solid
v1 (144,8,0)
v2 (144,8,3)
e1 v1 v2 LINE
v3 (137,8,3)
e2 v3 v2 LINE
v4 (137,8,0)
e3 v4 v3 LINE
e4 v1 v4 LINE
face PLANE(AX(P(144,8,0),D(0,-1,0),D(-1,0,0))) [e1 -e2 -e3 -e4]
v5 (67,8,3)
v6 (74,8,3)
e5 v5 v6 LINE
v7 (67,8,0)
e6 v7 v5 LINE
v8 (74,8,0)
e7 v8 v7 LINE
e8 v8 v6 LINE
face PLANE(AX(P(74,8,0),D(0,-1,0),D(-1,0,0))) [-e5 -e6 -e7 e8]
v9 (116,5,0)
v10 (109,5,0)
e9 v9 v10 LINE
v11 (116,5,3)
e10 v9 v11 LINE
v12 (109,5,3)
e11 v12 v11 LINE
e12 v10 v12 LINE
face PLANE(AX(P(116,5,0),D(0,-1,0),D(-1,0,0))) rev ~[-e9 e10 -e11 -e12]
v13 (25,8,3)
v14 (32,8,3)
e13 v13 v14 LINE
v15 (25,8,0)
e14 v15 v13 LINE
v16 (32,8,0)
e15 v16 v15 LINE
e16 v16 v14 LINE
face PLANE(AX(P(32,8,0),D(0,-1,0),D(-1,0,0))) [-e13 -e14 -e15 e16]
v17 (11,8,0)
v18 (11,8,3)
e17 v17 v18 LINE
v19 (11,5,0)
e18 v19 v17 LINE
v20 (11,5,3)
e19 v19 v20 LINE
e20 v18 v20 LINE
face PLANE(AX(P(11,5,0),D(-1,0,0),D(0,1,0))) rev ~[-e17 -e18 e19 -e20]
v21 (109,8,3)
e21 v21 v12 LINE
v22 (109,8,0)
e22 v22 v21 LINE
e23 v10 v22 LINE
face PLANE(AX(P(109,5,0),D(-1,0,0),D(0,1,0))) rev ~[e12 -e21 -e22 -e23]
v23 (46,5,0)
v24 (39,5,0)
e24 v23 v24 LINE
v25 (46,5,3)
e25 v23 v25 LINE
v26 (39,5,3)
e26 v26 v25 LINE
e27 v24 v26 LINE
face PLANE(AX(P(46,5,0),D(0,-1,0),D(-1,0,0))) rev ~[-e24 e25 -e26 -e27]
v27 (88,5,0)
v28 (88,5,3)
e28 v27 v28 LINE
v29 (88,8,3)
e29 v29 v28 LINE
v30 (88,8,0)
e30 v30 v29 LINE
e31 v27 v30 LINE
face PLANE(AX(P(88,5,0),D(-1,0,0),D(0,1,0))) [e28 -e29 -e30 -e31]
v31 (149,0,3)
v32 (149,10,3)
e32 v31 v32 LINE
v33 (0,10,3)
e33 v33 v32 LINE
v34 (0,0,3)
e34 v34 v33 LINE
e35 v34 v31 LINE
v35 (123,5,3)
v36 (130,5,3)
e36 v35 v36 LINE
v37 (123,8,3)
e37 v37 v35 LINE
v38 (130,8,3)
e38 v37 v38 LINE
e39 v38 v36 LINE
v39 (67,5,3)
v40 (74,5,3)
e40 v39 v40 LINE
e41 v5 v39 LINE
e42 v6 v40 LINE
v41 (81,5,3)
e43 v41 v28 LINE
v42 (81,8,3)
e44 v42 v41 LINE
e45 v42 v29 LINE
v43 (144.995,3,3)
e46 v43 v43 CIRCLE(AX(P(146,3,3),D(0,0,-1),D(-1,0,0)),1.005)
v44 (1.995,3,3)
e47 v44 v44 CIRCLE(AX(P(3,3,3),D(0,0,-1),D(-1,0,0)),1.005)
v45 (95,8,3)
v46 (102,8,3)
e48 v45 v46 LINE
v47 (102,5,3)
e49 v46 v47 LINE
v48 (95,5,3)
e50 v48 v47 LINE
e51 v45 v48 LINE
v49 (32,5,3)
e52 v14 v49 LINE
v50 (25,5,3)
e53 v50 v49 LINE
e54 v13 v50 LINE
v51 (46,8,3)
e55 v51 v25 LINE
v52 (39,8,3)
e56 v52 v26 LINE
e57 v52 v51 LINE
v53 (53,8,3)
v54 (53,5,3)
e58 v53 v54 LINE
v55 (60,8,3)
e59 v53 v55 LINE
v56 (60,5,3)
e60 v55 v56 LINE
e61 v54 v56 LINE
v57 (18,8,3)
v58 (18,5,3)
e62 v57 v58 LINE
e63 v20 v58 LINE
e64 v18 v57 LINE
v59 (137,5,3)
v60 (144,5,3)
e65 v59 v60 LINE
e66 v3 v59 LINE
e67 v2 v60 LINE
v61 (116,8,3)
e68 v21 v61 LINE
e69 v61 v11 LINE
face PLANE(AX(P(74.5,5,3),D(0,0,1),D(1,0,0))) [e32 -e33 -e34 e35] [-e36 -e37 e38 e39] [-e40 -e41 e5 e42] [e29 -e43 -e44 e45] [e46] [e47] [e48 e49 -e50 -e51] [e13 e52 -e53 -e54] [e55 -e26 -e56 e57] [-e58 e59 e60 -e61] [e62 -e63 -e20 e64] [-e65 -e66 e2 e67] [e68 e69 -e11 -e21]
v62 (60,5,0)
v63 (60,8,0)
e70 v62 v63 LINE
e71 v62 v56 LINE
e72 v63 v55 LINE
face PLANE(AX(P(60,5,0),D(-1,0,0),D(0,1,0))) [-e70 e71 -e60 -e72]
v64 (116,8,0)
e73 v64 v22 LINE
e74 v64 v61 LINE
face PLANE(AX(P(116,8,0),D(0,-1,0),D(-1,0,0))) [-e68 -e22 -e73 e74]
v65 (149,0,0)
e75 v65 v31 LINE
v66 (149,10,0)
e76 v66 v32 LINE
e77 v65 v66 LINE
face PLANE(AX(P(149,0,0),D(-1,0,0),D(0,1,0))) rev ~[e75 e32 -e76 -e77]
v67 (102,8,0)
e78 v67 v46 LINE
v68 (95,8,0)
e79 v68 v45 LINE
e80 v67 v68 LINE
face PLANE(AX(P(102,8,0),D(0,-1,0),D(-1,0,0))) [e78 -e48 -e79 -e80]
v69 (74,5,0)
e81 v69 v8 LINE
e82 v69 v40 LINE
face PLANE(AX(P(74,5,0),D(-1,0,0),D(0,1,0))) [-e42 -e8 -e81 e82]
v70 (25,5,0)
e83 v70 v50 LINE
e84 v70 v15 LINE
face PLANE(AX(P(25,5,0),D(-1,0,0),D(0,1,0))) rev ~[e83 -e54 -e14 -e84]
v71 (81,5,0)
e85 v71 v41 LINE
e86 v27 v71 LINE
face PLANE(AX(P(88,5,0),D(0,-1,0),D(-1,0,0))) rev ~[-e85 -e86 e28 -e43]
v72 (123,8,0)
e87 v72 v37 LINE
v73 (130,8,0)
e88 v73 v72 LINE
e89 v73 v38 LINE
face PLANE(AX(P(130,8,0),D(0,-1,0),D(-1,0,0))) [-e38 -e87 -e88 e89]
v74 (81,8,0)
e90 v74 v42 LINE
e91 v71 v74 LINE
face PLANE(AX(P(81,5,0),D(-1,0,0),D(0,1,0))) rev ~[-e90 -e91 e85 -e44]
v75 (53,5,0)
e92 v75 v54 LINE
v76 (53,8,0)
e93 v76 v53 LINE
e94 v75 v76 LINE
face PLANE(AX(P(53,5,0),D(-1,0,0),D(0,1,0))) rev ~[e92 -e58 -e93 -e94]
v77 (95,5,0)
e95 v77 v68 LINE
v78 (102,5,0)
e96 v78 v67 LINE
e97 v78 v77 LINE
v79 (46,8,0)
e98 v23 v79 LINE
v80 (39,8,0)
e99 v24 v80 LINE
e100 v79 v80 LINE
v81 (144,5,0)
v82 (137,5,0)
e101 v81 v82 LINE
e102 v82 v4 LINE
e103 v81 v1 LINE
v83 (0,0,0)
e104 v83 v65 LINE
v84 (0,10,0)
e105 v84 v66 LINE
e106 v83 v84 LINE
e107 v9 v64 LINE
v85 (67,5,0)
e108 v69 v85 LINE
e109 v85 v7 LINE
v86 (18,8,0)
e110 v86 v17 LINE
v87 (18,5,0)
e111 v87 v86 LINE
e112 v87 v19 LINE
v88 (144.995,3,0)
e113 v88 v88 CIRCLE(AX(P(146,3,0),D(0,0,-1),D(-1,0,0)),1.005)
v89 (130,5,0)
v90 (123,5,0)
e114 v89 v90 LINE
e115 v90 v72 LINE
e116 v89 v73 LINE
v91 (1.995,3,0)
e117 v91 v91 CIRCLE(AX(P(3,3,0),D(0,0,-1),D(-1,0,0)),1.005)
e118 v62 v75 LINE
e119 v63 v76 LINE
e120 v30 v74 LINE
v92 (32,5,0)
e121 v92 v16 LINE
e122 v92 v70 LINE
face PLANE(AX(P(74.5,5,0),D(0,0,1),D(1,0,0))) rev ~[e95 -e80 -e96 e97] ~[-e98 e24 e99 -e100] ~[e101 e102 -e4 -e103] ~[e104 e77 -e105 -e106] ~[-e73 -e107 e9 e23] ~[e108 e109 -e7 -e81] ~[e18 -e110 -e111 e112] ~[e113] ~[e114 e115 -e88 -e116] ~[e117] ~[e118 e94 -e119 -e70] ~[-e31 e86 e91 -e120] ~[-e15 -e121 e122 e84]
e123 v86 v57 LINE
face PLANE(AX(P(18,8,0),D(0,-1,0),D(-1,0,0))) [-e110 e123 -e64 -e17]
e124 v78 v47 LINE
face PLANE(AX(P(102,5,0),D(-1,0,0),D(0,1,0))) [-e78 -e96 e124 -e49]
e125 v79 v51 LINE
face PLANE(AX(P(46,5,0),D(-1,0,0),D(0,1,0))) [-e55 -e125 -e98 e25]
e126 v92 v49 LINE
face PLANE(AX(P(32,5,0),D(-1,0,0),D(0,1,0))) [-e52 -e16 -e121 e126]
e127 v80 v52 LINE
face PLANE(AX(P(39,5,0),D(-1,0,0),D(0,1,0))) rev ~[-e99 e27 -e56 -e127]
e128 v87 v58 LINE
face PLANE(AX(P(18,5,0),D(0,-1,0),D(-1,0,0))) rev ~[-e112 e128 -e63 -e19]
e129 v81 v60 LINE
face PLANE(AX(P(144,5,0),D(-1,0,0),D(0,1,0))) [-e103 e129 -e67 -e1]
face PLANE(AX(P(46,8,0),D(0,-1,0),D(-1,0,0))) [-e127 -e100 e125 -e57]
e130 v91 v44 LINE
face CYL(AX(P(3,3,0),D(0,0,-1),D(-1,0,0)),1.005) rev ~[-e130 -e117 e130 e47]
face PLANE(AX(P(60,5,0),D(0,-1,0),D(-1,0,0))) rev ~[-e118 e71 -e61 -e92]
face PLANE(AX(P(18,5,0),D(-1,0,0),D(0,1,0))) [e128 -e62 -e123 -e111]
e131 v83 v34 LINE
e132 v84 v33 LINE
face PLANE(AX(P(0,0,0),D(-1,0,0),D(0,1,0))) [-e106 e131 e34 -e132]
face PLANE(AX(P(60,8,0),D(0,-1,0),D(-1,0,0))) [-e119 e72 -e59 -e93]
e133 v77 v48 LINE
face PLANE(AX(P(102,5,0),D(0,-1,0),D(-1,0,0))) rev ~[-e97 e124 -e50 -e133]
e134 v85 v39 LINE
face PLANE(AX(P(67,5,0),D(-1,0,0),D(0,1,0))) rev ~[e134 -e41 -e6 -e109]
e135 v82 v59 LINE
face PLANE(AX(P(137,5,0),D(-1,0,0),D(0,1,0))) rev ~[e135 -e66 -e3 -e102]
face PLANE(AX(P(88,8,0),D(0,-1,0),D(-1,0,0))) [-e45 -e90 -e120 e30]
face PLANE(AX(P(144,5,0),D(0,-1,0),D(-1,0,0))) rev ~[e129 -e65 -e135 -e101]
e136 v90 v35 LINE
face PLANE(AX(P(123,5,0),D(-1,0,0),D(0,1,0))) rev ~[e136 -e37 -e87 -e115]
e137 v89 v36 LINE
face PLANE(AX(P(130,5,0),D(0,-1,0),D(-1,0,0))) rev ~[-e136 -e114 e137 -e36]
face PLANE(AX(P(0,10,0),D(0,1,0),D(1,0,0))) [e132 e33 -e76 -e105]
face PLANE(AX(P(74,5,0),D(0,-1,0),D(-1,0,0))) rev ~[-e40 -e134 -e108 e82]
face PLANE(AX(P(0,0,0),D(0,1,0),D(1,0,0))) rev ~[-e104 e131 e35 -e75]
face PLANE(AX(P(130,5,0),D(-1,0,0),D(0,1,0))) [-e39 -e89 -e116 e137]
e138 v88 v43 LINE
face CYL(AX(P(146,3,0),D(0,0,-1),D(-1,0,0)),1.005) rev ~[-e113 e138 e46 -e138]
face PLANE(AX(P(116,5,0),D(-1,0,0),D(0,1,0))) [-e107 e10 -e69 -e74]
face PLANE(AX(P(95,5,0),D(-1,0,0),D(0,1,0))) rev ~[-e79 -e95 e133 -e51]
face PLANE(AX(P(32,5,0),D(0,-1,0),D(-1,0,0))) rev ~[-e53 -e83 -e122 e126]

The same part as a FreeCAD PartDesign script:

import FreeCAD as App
import Part
import Sketcher
from FreeCAD import Vector

doc = App.newDocument("Part")
body = doc.addObject("PartDesign::Body", "Body")

sketch1 = doc.addObject("Sketcher::SketchObject", "Sketch")
body.addObject(sketch1)
sketch1.AttachmentSupport = (doc.XY_Plane, [""])
sketch1.MapMode = "FlatFace"
sketch1.addGeometry([
    Part.LineSegment(Vector(0, 10, 0), Vector(0, 0, 0)),
    Part.LineSegment(Vector(0, 0, 0), Vector(149, 0, 0)),
    Part.LineSegment(Vector(149, 0, 0), Vector(149, 10, 0)),
    Part.LineSegment(Vector(149, 10, 0), Vector(0, 10, 0)),
], False)
sketch1.addConstraint([
    Sketcher.Constraint("Coincident", 0, 2, 1, 1),
    Sketcher.Constraint("Coincident", 1, 2, 2, 1),
    Sketcher.Constraint("Coincident", 2, 2, 3, 1),
    Sketcher.Constraint("Coincident", 3, 2, 0, 1),
    Sketcher.Constraint("Vertical", 0),
    Sketcher.Constraint("Horizontal", 1),
    Sketcher.Constraint("Vertical", 2),
    Sketcher.Constraint("Horizontal", 3),
    Sketcher.Constraint("Coincident", 0, 2, -1, 1),
    Sketcher.Constraint("DistanceX", 1, 1, 1, 2, 149.0),
    Sketcher.Constraint("DistanceY", 0, 2, 0, 1, 10.0),
])
pad1 = doc.addObject("PartDesign::Pad", "Pad")
body.addObject(pad1)
pad1.Profile = sketch1
pad1.Length = 3

sketch2 = doc.addObject("Sketcher::SketchObject", "Sketch001")
body.addObject(sketch2)
sketch2.AttachmentSupport = (doc.XY_Plane, [""])
sketch2.MapMode = "FlatFace"
sketch2.addGeometry([
    Part.Circle(Vector(3, 3, 0), Vector(0, 0, 1), 1),
    Part.Circle(Vector(146, 3, 0), Vector(0, 0, 1), 1),
    Part.LineSegment(Vector(144, 8, 0), Vector(144, 5, 0)),
    Part.LineSegment(Vector(144, 5, 0), Vector(137, 5, 0)),
    Part.LineSegment(Vector(137, 5, 0), Vector(137, 8, 0)),
    Part.LineSegment(Vector(137, 8, 0), Vector(144, 8, 0)),
    Part.LineSegment(Vector(130, 8, 0), Vector(130, 5, 0)),
    Part.LineSegment(Vector(130, 5, 0), Vector(123, 5, 0)),
    Part.LineSegment(Vector(123, 5, 0), Vector(123, 8, 0)),
    Part.LineSegment(Vector(123, 8, 0), Vector(130, 8, 0)),
    Part.LineSegment(Vector(116, 8, 0), Vector(116, 5, 0)),
    Part.LineSegment(Vector(116, 5, 0), Vector(109, 5, 0)),
    Part.LineSegment(Vector(109, 5, 0), Vector(109, 8, 0)),
    Part.LineSegment(Vector(109, 8, 0), Vector(116, 8, 0)),
    Part.LineSegment(Vector(102, 8, 0), Vector(102, 5, 0)),
    Part.LineSegment(Vector(102, 5, 0), Vector(95, 5, 0)),
    Part.LineSegment(Vector(95, 5, 0), Vector(95, 8, 0)),
    Part.LineSegment(Vector(95, 8, 0), Vector(102, 8, 0)),
    Part.LineSegment(Vector(88, 8, 0), Vector(88, 5, 0)),
    Part.LineSegment(Vector(88, 5, 0), Vector(81, 5, 0)),
    Part.LineSegment(Vector(81, 5, 0), Vector(81, 8, 0)),
    Part.LineSegment(Vector(81, 8, 0), Vector(88, 8, 0)),
    Part.LineSegment(Vector(74, 8, 0), Vector(74, 5, 0)),
    Part.LineSegment(Vector(74, 5, 0), Vector(67, 5, 0)),
    Part.LineSegment(Vector(67, 5, 0), Vector(67, 8, 0)),
    Part.LineSegment(Vector(67, 8, 0), Vector(74, 8, 0)),
    Part.LineSegment(Vector(60, 8, 0), Vector(60, 5, 0)),
    Part.LineSegment(Vector(60, 5, 0), Vector(53, 5, 0)),
    Part.LineSegment(Vector(53, 5, 0), Vector(53, 8, 0)),
    Part.LineSegment(Vector(53, 8, 0), Vector(60, 8, 0)),
    Part.LineSegment(Vector(46, 8, 0), Vector(46, 5, 0)),
    Part.LineSegment(Vector(46, 5, 0), Vector(39, 5, 0)),
    Part.LineSegment(Vector(39, 5, 0), Vector(39, 8, 0)),
    Part.LineSegment(Vector(39, 8, 0), Vector(46, 8, 0)),
    Part.LineSegment(Vector(32, 8, 0), Vector(32, 5, 0)),
    Part.LineSegment(Vector(32, 5, 0), Vector(25, 5, 0)),
    Part.LineSegment(Vector(25, 5, 0), Vector(25, 8, 0)),
    Part.LineSegment(Vector(25, 8, 0), Vector(32, 8, 0)),
    Part.LineSegment(Vector(18, 8, 0), Vector(18, 5, 0)),
    Part.LineSegment(Vector(18, 5, 0), Vector(11, 5, 0)),
    Part.LineSegment(Vector(11, 5, 0), Vector(11, 8, 0)),
    Part.LineSegment(Vector(11, 8, 0), Vector(18, 8, 0)),
], False)
sketch2.addConstraint([
    Sketcher.Constraint("Coincident", 2, 2, 3, 1),
    Sketcher.Constraint("Coincident", 3, 2, 4, 1),
    Sketcher.Constraint("Coincident", 4, 2, 5, 1),
    Sketcher.Constraint("Coincident", 5, 2, 2, 1),
    Sketcher.Constraint("Coincident", 6, 2, 7, 1),
    Sketcher.Constraint("Coincident", 7, 2, 8, 1),
    Sketcher.Constraint("Coincident", 8, 2, 9, 1),
    Sketcher.Constraint("Coincident", 9, 2, 6, 1),
    Sketcher.Constraint("Coincident", 10, 2, 11, 1),
    Sketcher.Constraint("Coincident", 11, 2, 12, 1),
    Sketcher.Constraint("Coincident", 12, 2, 13, 1),
    Sketcher.Constraint("Coincident", 13, 2, 10, 1),
    Sketcher.Constraint("Coincident", 14, 2, 15, 1),
    Sketcher.Constraint("Coincident", 15, 2, 16, 1),
    Sketcher.Constraint("Coincident", 16, 2, 17, 1),
    Sketcher.Constraint("Coincident", 17, 2, 14, 1),
    Sketcher.Constraint("Coincident", 18, 2, 19, 1),
    Sketcher.Constraint("Coincident", 19, 2, 20, 1),
    Sketcher.Constraint("Coincident", 20, 2, 21, 1),
    Sketcher.Constraint("Coincident", 21, 2, 18, 1),
    Sketcher.Constraint("Coincident", 22, 2, 23, 1),
    Sketcher.Constraint("Coincident", 23, 2, 24, 1),
    Sketcher.Constraint("Coincident", 24, 2, 25, 1),
    Sketcher.Constraint("Coincident", 25, 2, 22, 1),
    Sketcher.Constraint("Coincident", 26, 2, 27, 1),
    Sketcher.Constraint("Coincident", 27, 2, 28, 1),
    Sketcher.Constraint("Coincident", 28, 2, 29, 1),
    Sketcher.Constraint("Coincident", 29, 2, 26, 1),
    Sketcher.Constraint("Coincident", 30, 2, 31, 1),
    Sketcher.Constraint("Coincident", 31, 2, 32, 1),
    Sketcher.Constraint("Coincident", 32, 2, 33, 1),
    Sketcher.Constraint("Coincident", 33, 2, 30, 1),
    Sketcher.Constraint("Coincident", 34, 2, 35, 1),
    Sketcher.Constraint("Coincident", 35, 2, 36, 1),
    Sketcher.Constraint("Coincident", 36, 2, 37, 1),
    Sketcher.Constraint("Coincident", 37, 2, 34, 1),
    Sketcher.Constraint("Coincident", 38, 2, 39, 1),
    Sketcher.Constraint("Coincident", 39, 2, 40, 1),
    Sketcher.Constraint("Coincident", 40, 2, 41, 1),
    Sketcher.Constraint("Coincident", 41, 2, 38, 1),
    Sketcher.Constraint("Vertical", 2),
    Sketcher.Constraint("Horizontal", 3),
    Sketcher.Constraint("Vertical", 4),
    Sketcher.Constraint("Horizontal", 5),
    Sketcher.Constraint("Vertical", 6),
    Sketcher.Constraint("Horizontal", 7),
    Sketcher.Constraint("Vertical", 8),
    Sketcher.Constraint("Horizontal", 9),
    Sketcher.Constraint("Vertical", 10),
    Sketcher.Constraint("Horizontal", 11),
    Sketcher.Constraint("Vertical", 12),
    Sketcher.Constraint("Horizontal", 13),
    Sketcher.Constraint("Vertical", 14),
    Sketcher.Constraint("Horizontal", 15),
    Sketcher.Constraint("Vertical", 16),
    Sketcher.Constraint("Horizontal", 17),
    Sketcher.Constraint("Vertical", 18),
    Sketcher.Constraint("Horizontal", 19),
    Sketcher.Constraint("Vertical", 20),
    Sketcher.Constraint("Horizontal", 21),
    Sketcher.Constraint("Vertical", 22),
    Sketcher.Constraint("Horizontal", 23),
    Sketcher.Constraint("Vertical", 24),
    Sketcher.Constraint("Horizontal", 25),
    Sketcher.Constraint("Vertical", 26),
    Sketcher.Constraint("Horizontal", 27),
    Sketcher.Constraint("Vertical", 28),
    Sketcher.Constraint("Horizontal", 29),
    Sketcher.Constraint("Vertical", 30),
    Sketcher.Constraint("Horizontal", 31),
    Sketcher.Constraint("Vertical", 32),
    Sketcher.Constraint("Horizontal", 33),
    Sketcher.Constraint("Vertical", 34),
    Sketcher.Constraint("Horizontal", 35),
    Sketcher.Constraint("Vertical", 36),
    Sketcher.Constraint("Horizontal", 37),
    Sketcher.Constraint("Vertical", 38),
    Sketcher.Constraint("Horizontal", 39),
    Sketcher.Constraint("Vertical", 40),
    Sketcher.Constraint("Horizontal", 41),
    Sketcher.Constraint("Equal", 0, 1),
    Sketcher.Constraint("Horizontal", 0, 3, 1, 3),
    Sketcher.Constraint("Horizontal", 3, 2, 6, 2),
    Sketcher.Constraint("Horizontal", 5, 2, 8, 2),
    Sketcher.Constraint("Horizontal", 7, 2, 10, 2),
    Sketcher.Constraint("Horizontal", 9, 2, 12, 2),
    Sketcher.Constraint("Horizontal", 11, 2, 14, 2),
    Sketcher.Constraint("Horizontal", 13, 2, 16, 2),
    Sketcher.Constraint("Horizontal", 15, 2, 18, 2),
    Sketcher.Constraint("Horizontal", 17, 2, 20, 2),
    Sketcher.Constraint("Horizontal", 19, 2, 22, 2),
    Sketcher.Constraint("Horizontal", 21, 2, 24, 2),
    Sketcher.Constraint("Horizontal", 23, 2, 26, 2),
    Sketcher.Constraint("Horizontal", 25, 2, 28, 2),
    Sketcher.Constraint("Horizontal", 27, 2, 30, 2),
    Sketcher.Constraint("Horizontal", 29, 2, 32, 2),
    Sketcher.Constraint("Horizontal", 31, 2, 34, 2),
    Sketcher.Constraint("Horizontal", 33, 2, 36, 2),
    Sketcher.Constraint("Horizontal", 35, 2, 38, 2),
    Sketcher.Constraint("Horizontal", 37, 2, 40, 2),
    Sketcher.Constraint("Equal", 5, 7),
    Sketcher.Constraint("Equal", 9, 11),
    Sketcher.Constraint("Equal", 13, 15),
    Sketcher.Constraint("Equal", 17, 19),
    Sketcher.Constraint("Equal", 21, 23),
    Sketcher.Constraint("Equal", 25, 27),
    Sketcher.Constraint("Equal", 29, 31),
    Sketcher.Constraint("Equal", 33, 35),
    Sketcher.Constraint("Equal", 37, 39),
    Sketcher.Constraint("Diameter", 0, 2.01),
    Sketcher.Constraint("DistanceX", 3, 2, 3, 1, 7.0),
    Sketcher.Constraint("DistanceY", 2, 2, 2, 1, 3.0),
    Sketcher.Constraint("DistanceX", -1, 1, 0, 3, 3.0),
    Sketcher.Constraint("DistanceY", -1, 1, 0, 3, 3.0),
    Sketcher.Constraint("DistanceX", -1, 1, 1, 3, 146.0),
    Sketcher.Constraint("DistanceX", -1, 1, 2, 2, 144.0),
    Sketcher.Constraint("DistanceY", -1, 1, 2, 2, 5.0),
    Sketcher.Constraint("DistanceX", -1, 1, 6, 2, 130.0),
    Sketcher.Constraint("DistanceX", -1, 1, 10, 2, 116.0),
    Sketcher.Constraint("DistanceX", -1, 1, 14, 2, 102.0),
    Sketcher.Constraint("DistanceX", -1, 1, 18, 2, 88.0),
    Sketcher.Constraint("DistanceX", -1, 1, 22, 2, 74.0),
    Sketcher.Constraint("DistanceX", -1, 1, 26, 2, 60.0),
    Sketcher.Constraint("DistanceX", -1, 1, 30, 2, 46.0),
    Sketcher.Constraint("DistanceX", -1, 1, 34, 2, 32.0),
    Sketcher.Constraint("DistanceX", -1, 1, 38, 2, 18.0),
])
pocket1 = doc.addObject("PartDesign::Pocket", "Pocket")
body.addObject(pocket1)
pocket1.Profile = sketch2
pocket1.Type = "ThroughAll"
pocket1.Reversed = True

doc.recompute()
